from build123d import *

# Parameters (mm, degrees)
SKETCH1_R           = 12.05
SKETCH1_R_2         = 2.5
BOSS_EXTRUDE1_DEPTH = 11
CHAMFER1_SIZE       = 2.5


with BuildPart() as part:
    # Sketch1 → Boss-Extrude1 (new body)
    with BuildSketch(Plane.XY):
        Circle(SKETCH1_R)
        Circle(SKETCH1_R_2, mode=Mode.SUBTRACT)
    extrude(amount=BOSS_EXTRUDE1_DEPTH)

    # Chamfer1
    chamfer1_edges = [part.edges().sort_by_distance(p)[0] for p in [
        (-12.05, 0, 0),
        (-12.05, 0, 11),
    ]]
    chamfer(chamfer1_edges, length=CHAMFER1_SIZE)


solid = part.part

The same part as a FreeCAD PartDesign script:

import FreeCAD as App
import Part
import Sketcher
from FreeCAD import Vector
Q = App.Units.Quantity


def edges_at(feature, points):
    """Names of the edges that pass closest to the given points."""
    edges = feature.Shape.Edges
    near = lambda p: min(range(len(edges)), key=lambda i: edges[i].distToShape(Part.Vertex(*p))[0])
    return sorted({f"Edge{near(p) + 1}" for p in points})

doc = App.newDocument("Part")
params = doc.addObject("Spreadsheet::Sheet", "Params")
for row, (alias, value) in enumerate([
    ("sketch1_diameter", "5 mm"),
    ("sketch1_diameter2", "24.1 mm"),
    ("pad1_length", "11 mm"),
    ("chamfer_size", "2.5 mm"),
], start=1):
    params.set(f"A{row}", alias)
    params.set(f"B{row}", "=" + value)
    params.setAlias(f"B{row}", alias)

body = doc.addObject("PartDesign::Body", "Body")

# Sketch on XY plane
sketch1 = doc.addObject("Sketcher::SketchObject", "Sketch")
body.addObject(sketch1)
sketch1.AttachmentSupport = (doc.XY_Plane, [""])
sketch1.MapMode = "FlatFace"
sketch1.addGeometry([
    Part.Circle(Vector(0, 0, 0), Vector(0, 0, 1), 12.1),
    Part.Circle(Vector(0, 0, 0), Vector(0, 0, 1), 2.5),
], False)
sketch1.addConstraint([
    Sketcher.Constraint("Coincident", 0, 3, -1, 1),
    Sketcher.Constraint("Coincident", 1, 3, -1, 1),
    Sketcher.Constraint("Diameter", 1, Q("5 mm")),
    Sketcher.Constraint("Diameter", 0, Q("24.1 mm")),
])
sketch1.setExpression("Constraints[2]", "Params.sketch1_diameter")
sketch1.setExpression("Constraints[3]", "Params.sketch1_diameter2")
pad1 = doc.addObject("PartDesign::Pad", "Pad")
body.addObject(pad1)
pad1.Profile = sketch1
pad1.setExpression("Length", "Params.pad1_length")
doc.recompute()

chamfer = doc.addObject("PartDesign::Chamfer", "Chamfer")
body.addObject(chamfer)
chamfer.Base = (pad1, edges_at(pad1, [(-12.05, 0, 0), (-12.05, 0, 11)]))
chamfer.setExpression("Size", "Params.chamfer_size")

doc.recompute()
